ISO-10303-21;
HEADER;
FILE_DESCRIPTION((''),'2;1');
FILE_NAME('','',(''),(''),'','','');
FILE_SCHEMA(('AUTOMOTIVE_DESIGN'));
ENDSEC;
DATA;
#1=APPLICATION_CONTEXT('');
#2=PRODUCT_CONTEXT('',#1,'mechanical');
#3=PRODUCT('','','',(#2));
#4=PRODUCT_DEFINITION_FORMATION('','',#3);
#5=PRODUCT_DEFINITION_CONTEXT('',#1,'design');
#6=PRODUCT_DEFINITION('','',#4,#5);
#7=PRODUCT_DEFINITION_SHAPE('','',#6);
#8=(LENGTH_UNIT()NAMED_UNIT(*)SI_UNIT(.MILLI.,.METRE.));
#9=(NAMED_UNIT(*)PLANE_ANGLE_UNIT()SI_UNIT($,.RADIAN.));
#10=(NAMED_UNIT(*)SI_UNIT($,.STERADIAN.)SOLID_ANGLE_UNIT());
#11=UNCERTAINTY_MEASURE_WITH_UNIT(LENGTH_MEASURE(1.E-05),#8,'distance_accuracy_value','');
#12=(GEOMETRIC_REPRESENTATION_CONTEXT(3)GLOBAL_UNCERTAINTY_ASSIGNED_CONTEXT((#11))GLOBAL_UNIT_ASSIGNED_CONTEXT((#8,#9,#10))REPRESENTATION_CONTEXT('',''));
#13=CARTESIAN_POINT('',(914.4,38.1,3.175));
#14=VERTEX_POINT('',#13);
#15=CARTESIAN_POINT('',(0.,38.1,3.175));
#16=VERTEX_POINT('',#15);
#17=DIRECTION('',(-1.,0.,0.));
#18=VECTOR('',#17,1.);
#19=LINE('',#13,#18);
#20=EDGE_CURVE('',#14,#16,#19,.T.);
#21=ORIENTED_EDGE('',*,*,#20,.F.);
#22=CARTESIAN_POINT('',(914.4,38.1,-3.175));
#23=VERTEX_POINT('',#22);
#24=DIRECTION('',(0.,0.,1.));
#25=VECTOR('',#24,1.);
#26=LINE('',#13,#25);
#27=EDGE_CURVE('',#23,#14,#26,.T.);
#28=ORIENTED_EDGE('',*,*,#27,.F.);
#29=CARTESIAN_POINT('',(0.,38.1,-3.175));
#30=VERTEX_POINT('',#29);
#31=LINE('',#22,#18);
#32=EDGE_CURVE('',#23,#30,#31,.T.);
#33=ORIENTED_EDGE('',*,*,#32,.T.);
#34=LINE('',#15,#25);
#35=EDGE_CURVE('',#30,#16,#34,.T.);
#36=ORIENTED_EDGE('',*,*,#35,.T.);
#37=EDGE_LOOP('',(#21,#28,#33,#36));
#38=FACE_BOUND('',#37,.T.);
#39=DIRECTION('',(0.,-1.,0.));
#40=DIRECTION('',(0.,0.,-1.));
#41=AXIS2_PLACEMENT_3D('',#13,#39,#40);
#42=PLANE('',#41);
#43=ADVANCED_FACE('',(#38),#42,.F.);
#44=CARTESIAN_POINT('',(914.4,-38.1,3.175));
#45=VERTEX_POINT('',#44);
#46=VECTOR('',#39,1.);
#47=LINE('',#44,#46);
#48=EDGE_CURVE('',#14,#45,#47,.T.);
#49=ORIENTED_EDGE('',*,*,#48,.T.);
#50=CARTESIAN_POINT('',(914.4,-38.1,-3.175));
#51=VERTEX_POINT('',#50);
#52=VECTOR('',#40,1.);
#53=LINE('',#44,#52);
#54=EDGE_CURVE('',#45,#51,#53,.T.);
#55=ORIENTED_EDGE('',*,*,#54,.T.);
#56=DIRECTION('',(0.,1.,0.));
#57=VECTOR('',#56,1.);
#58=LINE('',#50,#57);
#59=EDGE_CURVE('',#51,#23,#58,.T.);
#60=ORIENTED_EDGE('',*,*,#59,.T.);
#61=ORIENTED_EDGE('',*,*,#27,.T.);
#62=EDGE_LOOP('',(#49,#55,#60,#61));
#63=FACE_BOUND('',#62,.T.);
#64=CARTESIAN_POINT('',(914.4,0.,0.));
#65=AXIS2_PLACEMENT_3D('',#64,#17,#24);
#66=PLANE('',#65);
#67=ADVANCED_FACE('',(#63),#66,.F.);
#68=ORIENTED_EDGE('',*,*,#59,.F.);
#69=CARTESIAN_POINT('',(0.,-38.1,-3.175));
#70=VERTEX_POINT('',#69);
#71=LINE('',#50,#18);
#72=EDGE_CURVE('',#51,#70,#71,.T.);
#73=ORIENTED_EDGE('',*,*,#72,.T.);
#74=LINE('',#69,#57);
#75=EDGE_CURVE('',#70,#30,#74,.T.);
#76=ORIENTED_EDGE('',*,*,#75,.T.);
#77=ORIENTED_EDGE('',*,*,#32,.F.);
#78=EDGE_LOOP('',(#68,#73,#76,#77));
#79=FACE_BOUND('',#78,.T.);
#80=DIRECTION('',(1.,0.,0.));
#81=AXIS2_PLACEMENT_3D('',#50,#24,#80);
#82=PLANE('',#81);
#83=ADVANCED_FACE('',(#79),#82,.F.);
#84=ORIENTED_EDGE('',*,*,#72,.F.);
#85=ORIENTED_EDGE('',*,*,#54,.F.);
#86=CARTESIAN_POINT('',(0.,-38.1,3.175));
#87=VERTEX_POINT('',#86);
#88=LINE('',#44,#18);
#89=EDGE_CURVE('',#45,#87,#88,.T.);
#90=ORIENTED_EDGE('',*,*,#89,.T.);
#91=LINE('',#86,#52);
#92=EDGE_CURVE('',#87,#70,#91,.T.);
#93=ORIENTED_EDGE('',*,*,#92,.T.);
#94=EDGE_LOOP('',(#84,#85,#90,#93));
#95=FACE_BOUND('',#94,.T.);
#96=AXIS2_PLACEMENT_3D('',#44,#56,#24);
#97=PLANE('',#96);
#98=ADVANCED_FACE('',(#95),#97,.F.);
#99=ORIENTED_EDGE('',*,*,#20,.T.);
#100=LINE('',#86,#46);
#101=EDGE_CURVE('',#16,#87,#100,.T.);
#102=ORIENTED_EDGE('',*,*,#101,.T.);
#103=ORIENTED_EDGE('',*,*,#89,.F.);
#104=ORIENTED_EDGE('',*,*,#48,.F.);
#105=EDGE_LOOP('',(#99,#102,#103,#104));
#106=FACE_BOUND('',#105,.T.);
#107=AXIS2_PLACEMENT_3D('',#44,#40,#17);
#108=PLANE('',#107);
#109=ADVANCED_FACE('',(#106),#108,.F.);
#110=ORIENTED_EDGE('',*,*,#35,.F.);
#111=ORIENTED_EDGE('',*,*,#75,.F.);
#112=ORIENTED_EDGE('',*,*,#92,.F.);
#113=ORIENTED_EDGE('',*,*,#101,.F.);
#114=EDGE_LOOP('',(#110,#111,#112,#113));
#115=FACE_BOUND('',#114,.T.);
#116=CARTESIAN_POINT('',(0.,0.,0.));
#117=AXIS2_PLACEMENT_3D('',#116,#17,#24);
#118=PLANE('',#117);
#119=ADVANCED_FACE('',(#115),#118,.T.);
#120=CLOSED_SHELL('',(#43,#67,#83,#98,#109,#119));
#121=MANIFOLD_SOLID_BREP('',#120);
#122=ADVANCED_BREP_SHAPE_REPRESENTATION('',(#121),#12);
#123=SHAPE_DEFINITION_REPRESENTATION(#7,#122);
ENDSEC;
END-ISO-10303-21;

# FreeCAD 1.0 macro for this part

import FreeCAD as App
import Part
import Sketcher
from FreeCAD import Vector
Q = App.Units.Quantity

doc = App.newDocument("Part")
body = doc.addObject("PartDesign::Body", "Body")

sketch1 = body.newObject("Sketcher::SketchObject", "Sketch")
sketch1.AttachmentSupport = (doc.getObject("YZ_Plane"), [""])
sketch1.MapMode = "FlatFace"
sketch1.addGeometry(Part.LineSegment(Vector(38, 3, 0), Vector(-38, 3, 0)), False)
sketch1.addGeometry(Part.LineSegment(Vector(-38, 3, 0), Vector(-38, -3, 0)), False)
sketch1.addGeometry(Part.LineSegment(Vector(-38, -3, 0), Vector(38, -3, 0)), False)
sketch1.addGeometry(Part.LineSegment(Vector(38, -3, 0), Vector(38, 3, 0)), False)
sketch1.addConstraint(Sketcher.Constraint("Coincident", 0, 2, 1, 1))
sketch1.addConstraint(Sketcher.Constraint("Coincident", 1, 2, 2, 1))
sketch1.addConstraint(Sketcher.Constraint("Coincident", 2, 2, 3, 1))
sketch1.addConstraint(Sketcher.Constraint("Coincident", 3, 2, 0, 1))
sketch1.addConstraint(Sketcher.Constraint("Horizontal", 0))
sketch1.addConstraint(Sketcher.Constraint("Vertical", 1))
sketch1.addConstraint(Sketcher.Constraint("Horizontal", 2))
sketch1.addConstraint(Sketcher.Constraint("Vertical", 3))
sketch1.addConstraint(Sketcher.Constraint("Symmetric", 0, 2, 2, 2, -1, 1))
sketch1.addConstraint(Sketcher.Constraint("DistanceX", 0, 2, 0, 1, Q("3 in")))
sketch1.addConstraint(Sketcher.Constraint("DistanceY", 1, 2, 1, 1, Q("0.25 in")))
pad1 = body.newObject("PartDesign::Pad", "Pad")
pad1.Profile = sketch1
pad1.Length = Q("36 in")

doc.recompute()
